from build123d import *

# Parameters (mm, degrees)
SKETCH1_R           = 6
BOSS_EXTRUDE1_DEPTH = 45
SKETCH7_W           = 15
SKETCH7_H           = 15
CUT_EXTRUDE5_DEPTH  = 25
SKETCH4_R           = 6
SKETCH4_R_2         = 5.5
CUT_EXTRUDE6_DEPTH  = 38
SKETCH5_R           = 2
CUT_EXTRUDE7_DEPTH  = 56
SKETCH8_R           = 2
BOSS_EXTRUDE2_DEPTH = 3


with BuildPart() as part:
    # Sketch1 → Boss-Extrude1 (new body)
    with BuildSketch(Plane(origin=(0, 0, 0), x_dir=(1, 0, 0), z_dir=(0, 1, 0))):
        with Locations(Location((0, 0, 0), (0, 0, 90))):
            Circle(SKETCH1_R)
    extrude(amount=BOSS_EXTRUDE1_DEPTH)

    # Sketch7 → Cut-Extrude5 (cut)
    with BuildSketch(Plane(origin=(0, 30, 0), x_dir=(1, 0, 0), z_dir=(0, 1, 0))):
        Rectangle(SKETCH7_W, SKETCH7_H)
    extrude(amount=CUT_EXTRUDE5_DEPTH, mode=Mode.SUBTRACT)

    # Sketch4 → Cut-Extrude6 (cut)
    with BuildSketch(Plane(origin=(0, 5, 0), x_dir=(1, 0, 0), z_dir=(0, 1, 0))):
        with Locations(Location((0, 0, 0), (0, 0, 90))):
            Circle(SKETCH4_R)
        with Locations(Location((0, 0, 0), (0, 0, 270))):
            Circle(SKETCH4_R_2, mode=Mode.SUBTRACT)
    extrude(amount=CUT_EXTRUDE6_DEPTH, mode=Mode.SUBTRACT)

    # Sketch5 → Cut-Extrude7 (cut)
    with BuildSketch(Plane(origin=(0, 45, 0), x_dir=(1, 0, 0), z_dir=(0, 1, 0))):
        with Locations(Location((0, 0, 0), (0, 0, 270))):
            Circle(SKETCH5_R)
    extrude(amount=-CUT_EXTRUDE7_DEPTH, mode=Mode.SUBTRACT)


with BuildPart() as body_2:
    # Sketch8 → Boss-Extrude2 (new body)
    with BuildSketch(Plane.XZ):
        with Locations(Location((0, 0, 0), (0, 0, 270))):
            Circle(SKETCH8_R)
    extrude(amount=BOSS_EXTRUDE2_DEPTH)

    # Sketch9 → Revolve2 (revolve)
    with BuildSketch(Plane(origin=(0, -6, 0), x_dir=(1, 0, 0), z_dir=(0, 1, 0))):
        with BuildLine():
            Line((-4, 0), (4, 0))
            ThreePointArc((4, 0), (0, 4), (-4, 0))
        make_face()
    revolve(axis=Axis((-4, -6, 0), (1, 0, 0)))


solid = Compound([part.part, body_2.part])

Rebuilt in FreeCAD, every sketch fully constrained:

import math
import FreeCAD as App
import Part
import Sketcher
from FreeCAD import Vector

doc = App.newDocument("Part")
body = doc.addObject("PartDesign::Body", "Body")

sketch1 = body.newObject("Sketcher::SketchObject", "Sketch")
sketch1.AttachmentSupport = (doc.getObject("XZ_Plane"), [""])
sketch1.MapMode = "FlatFace"
sketch1.addGeometry(Part.Circle(Vector(0, 0, 0), Vector(0, 0, 1), 6), False)
sketch1.addConstraint([
    Sketcher.Constraint("Coincident", 0, 3, -1, 1),
    Sketcher.Constraint("Diameter", 0, 12.0),
])
pad1 = body.newObject("PartDesign::Pad", "Pad")
pad1.Profile = sketch1
pad1.Length = 45
pad1.Reversed = True

sketch2 = body.newObject("Sketcher::SketchObject", "Sketch001")
sketch2.AttachmentSupport = (doc.getObject("XZ_Plane"), [""])
sketch2.MapMode = "FlatFace"
sketch2.AttachmentOffset = App.Placement(Vector(0, 0, -30), App.Rotation())
sketch2.addGeometry([
    Part.LineSegment(Vector(-8, -8, 0), Vector(-8, 8, 0)),
    Part.LineSegment(Vector(-8, 8, 0), Vector(8, 8, 0)),
    Part.LineSegment(Vector(8, 8, 0), Vector(8, -8, 0)),
    Part.LineSegment(Vector(8, -8, 0), Vector(-8, -8, 0)),
], False)
sketch2.addConstraint([
    Sketcher.Constraint("Coincident", 0, 2, 1, 1),
    Sketcher.Constraint("Coincident", 1, 2, 2, 1),
    Sketcher.Constraint("Coincident", 2, 2, 3, 1),
    Sketcher.Constraint("Coincident", 3, 2, 0, 1),
    Sketcher.Constraint("Vertical", 0),
    Sketcher.Constraint("Horizontal", 1),
    Sketcher.Constraint("Vertical", 2),
    Sketcher.Constraint("Horizontal", 3),
    Sketcher.Constraint("Symmetric", 0, 2, 2, 2, -1, 1),
    Sketcher.Constraint("Equal", 3, 0),
    Sketcher.Constraint("DistanceX", 1, 1, 1, 2, 15.0),
])
pocket1 = body.newObject("PartDesign::Pocket", "Pocket")
pocket1.Profile = sketch2
pocket1.Length = 25

sketch3 = body.newObject("Sketcher::SketchObject", "Sketch002")
sketch3.AttachmentSupport = (doc.getObject("XZ_Plane"), [""])
sketch3.MapMode = "FlatFace"
sketch3.AttachmentOffset = App.Placement(Vector(0, 0, -5), App.Rotation())
sketch3.addGeometry([
    Part.Circle(Vector(0, 0, 0), Vector(0, 0, 1), 6),
    Part.Circle(Vector(0, 0, 0), Vector(0, 0, 1), 6),
], False)
sketch3.addConstraint([
    Sketcher.Constraint("Coincident", 0, 3, -1, 1),
    Sketcher.Constraint("Coincident", 1, 3, -1, 1),
    Sketcher.Constraint("Diameter", 0, 12.0),
    Sketcher.Constraint("Diameter", 1, 11.0),
])
pocket2 = body.newObject("PartDesign::Pocket", "Pocket001")
pocket2.Profile = sketch3
pocket2.Length = 38

sketch4 = body.newObject("Sketcher::SketchObject", "Sketch003")
sketch4.AttachmentSupport = (doc.getObject("XZ_Plane"), [""])
sketch4.MapMode = "FlatFace"
sketch4.AttachmentOffset = App.Placement(Vector(0, 0, -45), App.Rotation())
sketch4.addGeometry(Part.Circle(Vector(0, 0, 0), Vector(0, 0, 1), 2), False)
sketch4.addConstraint([
    Sketcher.Constraint("Coincident", 0, 3, -1, 1),
    Sketcher.Constraint("Diameter", 0, 4.0),
])
pocket3 = body.newObject("PartDesign::Pocket", "Pocket002")
pocket3.Profile = sketch4
pocket3.Length = 56
pocket3.Reversed = True
body2 = doc.addObject("PartDesign::Body", "Body001")

sketch5 = body2.newObject("Sketcher::SketchObject", "Sketch004")
sketch5.AttachmentSupport = (doc.getObject("XZ_Plane001"), [""])
sketch5.MapMode = "FlatFace"
sketch5.addGeometry(Part.Circle(Vector(0, 0, 0), Vector(0, 0, 1), 2), False)
sketch5.addConstraint([
    Sketcher.Constraint("Coincident", 0, 3, -1, 1),
    Sketcher.Constraint("Diameter", 0, 4.0),
])
pad2 = body2.newObject("PartDesign::Pad", "Pad001")
pad2.Profile = sketch5
pad2.Length = 3

sketch6 = body2.newObject("Sketcher::SketchObject", "Sketch005")
sketch6.AttachmentSupport = (doc.getObject("XZ_Plane001"), [""])
sketch6.MapMode = "FlatFace"
sketch6.AttachmentOffset = App.Placement(Vector(0, 0, 6), App.Rotation())
sketch6.addGeometry([
    Part.LineSegment(Vector(-4, 0, 0), Vector(4, 0, 0)),
    Part.ArcOfCircle(Part.Circle(Vector(0, 0, 0), Vector(0, 0, 1), 4), math.radians(180), math.radians(360)),
], False)
sketch6.addConstraint([
    Sketcher.Constraint("Coincident", 0, 1, 1, 1),
    Sketcher.Constraint("Coincident", 1, 2, 0, 2),
    Sketcher.Constraint("Horizontal", 0),
    Sketcher.Constraint("Coincident", 1, 3, -1, 1),
    Sketcher.Constraint("PointOnObject", 0, 1, -1),
    Sketcher.Constraint("Radius", 1, 4.0),
])
revolution = body2.newObject("PartDesign::Revolution", "Revolution")
revolution.Profile = sketch6
revolution.ReferenceAxis = (sketch6, ["H_Axis"])
revolution.Angle = 360

doc.recompute()
